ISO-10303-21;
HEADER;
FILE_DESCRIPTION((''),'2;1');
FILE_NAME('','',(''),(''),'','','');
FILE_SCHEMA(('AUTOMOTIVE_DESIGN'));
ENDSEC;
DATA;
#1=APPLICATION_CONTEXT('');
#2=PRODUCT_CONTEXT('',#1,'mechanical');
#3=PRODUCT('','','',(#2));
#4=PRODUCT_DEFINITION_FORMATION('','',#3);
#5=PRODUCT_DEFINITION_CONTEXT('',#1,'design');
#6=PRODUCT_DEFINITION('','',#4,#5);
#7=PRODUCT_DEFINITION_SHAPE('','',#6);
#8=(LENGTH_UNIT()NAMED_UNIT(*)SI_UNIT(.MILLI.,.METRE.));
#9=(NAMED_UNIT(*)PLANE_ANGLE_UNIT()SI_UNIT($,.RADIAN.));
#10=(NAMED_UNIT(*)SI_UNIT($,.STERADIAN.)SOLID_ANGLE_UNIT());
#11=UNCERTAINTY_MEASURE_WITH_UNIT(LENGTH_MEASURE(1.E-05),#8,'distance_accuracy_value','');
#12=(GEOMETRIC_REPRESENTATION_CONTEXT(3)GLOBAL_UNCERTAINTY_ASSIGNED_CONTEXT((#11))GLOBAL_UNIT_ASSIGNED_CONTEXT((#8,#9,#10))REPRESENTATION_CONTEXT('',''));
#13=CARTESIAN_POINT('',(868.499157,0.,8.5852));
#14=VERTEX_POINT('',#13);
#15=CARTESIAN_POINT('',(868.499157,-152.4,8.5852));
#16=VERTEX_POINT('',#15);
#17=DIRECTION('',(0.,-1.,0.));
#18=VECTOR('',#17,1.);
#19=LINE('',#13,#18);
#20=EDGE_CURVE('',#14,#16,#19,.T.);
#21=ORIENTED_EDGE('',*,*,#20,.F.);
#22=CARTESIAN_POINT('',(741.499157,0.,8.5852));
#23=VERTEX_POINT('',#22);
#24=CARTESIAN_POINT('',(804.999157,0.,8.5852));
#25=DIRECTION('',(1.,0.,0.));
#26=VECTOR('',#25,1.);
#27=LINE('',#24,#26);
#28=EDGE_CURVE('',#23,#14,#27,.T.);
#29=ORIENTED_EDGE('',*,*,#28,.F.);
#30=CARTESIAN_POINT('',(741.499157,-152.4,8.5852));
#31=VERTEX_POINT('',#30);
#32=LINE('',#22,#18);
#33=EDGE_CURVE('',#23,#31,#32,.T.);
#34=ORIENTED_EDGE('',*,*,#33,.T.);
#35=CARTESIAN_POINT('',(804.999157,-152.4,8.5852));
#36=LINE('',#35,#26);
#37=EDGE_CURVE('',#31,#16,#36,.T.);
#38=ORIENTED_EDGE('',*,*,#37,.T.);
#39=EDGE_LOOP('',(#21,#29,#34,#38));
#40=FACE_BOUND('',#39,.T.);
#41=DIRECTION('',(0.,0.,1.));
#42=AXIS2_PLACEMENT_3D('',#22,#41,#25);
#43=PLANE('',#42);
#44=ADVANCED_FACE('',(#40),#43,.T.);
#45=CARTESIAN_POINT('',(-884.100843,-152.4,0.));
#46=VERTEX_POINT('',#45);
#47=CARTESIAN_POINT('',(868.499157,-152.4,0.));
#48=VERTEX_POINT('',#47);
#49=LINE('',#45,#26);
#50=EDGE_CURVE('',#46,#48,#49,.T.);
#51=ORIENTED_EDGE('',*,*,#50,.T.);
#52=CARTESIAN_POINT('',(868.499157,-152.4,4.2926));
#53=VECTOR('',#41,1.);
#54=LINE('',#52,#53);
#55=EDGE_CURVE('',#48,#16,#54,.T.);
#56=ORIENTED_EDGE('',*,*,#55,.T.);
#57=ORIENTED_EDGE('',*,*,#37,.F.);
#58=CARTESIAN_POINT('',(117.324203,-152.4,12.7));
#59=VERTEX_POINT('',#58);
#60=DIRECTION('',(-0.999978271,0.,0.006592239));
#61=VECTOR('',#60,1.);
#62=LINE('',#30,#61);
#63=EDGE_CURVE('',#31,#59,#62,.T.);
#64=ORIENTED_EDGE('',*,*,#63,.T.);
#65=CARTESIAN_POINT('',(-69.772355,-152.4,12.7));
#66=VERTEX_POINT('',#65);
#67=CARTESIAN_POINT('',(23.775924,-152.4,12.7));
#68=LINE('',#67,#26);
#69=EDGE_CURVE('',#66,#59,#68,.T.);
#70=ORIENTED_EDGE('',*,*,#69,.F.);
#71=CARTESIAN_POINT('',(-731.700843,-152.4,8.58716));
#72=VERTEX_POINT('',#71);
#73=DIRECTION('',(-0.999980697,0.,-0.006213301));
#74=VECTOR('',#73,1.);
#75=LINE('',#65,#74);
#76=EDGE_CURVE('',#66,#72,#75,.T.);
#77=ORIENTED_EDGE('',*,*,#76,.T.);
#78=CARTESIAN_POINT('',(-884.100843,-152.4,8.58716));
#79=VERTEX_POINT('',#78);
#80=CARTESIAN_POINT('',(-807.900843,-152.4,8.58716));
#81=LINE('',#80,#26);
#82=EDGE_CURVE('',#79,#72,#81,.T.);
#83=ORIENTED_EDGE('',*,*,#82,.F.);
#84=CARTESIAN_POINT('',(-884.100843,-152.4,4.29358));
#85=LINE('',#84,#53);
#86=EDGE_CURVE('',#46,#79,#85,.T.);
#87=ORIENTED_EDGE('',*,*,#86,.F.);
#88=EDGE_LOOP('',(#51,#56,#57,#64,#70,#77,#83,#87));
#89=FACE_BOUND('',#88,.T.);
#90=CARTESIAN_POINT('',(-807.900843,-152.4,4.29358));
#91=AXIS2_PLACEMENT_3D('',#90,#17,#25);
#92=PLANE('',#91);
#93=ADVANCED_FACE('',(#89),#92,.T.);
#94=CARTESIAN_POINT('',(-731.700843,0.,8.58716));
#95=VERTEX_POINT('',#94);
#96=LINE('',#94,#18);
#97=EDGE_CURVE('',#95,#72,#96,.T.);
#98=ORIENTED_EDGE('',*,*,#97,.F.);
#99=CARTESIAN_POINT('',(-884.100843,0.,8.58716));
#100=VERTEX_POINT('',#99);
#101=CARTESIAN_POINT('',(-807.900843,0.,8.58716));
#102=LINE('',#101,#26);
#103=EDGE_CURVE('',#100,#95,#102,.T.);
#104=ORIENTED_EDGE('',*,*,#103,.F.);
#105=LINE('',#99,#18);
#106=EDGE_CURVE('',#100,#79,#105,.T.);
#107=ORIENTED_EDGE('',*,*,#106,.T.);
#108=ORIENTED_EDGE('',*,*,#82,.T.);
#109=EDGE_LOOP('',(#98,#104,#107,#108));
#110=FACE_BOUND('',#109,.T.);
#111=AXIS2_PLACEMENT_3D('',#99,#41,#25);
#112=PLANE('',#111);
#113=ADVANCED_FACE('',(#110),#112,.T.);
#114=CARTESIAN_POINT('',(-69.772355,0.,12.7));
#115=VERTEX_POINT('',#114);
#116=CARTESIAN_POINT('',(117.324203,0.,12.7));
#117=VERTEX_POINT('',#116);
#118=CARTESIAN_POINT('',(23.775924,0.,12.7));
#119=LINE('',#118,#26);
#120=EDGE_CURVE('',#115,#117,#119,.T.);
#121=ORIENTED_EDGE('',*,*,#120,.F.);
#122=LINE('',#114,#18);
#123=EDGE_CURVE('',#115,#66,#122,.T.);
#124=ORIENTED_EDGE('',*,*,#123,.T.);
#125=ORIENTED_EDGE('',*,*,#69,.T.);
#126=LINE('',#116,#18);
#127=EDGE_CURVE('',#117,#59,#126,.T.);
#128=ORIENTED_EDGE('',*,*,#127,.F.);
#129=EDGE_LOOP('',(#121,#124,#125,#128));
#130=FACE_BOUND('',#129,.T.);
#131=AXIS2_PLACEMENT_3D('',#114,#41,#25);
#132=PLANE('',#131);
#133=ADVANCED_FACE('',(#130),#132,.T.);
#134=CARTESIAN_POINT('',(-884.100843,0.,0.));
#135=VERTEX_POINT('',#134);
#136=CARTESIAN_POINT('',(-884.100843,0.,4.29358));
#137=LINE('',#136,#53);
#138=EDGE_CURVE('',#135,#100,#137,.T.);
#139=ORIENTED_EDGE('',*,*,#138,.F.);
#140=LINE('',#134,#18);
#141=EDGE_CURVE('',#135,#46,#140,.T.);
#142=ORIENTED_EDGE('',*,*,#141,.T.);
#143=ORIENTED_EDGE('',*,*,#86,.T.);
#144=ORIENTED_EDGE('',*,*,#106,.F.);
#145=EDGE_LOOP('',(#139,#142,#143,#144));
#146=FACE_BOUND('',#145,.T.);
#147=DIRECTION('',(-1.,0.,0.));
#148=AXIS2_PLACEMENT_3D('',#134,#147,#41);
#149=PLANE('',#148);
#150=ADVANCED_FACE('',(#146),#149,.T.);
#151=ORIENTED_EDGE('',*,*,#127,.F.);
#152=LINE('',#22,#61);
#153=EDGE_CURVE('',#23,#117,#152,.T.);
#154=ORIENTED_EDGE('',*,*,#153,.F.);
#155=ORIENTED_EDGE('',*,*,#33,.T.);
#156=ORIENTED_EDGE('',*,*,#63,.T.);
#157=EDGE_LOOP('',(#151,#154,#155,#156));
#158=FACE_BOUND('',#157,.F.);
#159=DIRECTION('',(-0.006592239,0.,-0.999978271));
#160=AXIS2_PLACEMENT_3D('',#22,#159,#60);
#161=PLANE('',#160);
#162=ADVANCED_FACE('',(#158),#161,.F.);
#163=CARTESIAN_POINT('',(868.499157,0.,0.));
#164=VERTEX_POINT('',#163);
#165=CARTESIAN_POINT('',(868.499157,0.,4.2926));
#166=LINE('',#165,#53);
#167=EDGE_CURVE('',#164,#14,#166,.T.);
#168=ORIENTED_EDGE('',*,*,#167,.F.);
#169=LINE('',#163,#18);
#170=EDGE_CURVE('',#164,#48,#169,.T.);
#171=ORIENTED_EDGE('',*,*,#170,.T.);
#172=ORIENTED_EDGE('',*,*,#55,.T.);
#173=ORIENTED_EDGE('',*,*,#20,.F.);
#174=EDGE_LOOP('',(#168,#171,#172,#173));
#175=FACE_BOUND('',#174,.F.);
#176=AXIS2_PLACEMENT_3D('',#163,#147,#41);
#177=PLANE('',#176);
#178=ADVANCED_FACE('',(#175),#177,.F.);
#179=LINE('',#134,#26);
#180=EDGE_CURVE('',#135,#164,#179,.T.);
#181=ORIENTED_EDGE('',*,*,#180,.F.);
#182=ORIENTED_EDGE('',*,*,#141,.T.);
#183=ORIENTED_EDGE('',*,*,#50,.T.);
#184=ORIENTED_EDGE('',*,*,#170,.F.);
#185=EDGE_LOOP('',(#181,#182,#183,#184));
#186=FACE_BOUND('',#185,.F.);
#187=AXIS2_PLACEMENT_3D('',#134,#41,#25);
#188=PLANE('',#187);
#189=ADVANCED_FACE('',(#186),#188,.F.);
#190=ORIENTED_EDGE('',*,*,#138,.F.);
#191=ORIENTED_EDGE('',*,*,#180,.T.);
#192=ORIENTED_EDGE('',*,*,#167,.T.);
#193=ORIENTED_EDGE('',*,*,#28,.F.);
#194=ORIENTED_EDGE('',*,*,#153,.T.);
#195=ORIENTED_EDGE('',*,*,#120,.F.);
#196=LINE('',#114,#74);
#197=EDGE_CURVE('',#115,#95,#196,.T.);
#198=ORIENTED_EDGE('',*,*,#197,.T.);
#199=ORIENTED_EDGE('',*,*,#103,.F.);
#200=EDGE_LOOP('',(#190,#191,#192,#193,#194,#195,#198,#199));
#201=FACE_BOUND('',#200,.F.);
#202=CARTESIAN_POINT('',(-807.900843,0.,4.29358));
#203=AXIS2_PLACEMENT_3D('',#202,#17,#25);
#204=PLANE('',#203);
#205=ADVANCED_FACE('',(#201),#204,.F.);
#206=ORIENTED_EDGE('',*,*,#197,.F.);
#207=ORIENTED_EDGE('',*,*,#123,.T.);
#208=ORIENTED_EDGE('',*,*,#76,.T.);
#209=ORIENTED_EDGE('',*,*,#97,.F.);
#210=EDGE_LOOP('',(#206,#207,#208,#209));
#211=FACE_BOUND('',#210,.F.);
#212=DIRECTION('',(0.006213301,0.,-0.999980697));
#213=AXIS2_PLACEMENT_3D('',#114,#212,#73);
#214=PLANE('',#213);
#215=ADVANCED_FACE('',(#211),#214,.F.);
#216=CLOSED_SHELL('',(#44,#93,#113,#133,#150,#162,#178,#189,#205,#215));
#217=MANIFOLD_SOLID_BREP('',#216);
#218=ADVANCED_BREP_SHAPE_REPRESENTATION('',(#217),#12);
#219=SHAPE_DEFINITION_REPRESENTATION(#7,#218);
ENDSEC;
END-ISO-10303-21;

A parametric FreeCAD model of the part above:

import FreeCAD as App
import Part
import Sketcher
from FreeCAD import Vector
Q = App.Units.Quantity

doc = App.newDocument("Part")
body = doc.addObject("PartDesign::Body", "Body")

sketch1 = body.newObject("Sketcher::SketchObject", "Sketch")
sketch1.AttachmentSupport = (doc.getObject("XZ_Plane"), [""])
sketch1.MapMode = "FlatFace"
sketch1.addGeometry(Part.LineSegment(Vector(-884, 9, 0), Vector(-884, 0, 0)), False)
sketch1.addGeometry(Part.LineSegment(Vector(-884, 0, 0), Vector(868, 0, 0)), False)
sketch1.addGeometry(Part.LineSegment(Vector(868, 0, 0), Vector(868, 9, 0)), False)
sketch1.addGeometry(Part.LineSegment(Vector(868, 9, 0), Vector(741, 9, 0)), False)
sketch1.addGeometry(Part.LineSegment(Vector(741, 9, 0), Vector(117, 13, 0)), False)
sketch1.addGeometry(Part.LineSegment(Vector(117, 13, 0), Vector(-70, 13, 0)), False)
sketch1.addGeometry(Part.LineSegment(Vector(-70, 13, 0), Vector(-732, 9, 0)), False)
sketch1.addGeometry(Part.LineSegment(Vector(-732, 9, 0), Vector(-884, 9, 0)), False)
sketch1.addConstraint(Sketcher.Constraint("Coincident", 0, 2, 1, 1))
sketch1.addConstraint(Sketcher.Constraint("Coincident", 1, 2, 2, 1))
sketch1.addConstraint(Sketcher.Constraint("Coincident", 2, 2, 3, 1))
sketch1.addConstraint(Sketcher.Constraint("Coincident", 3, 2, 4, 1))
sketch1.addConstraint(Sketcher.Constraint("Coincident", 4, 2, 5, 1))
sketch1.addConstraint(Sketcher.Constraint("Coincident", 5, 2, 6, 1))
sketch1.addConstraint(Sketcher.Constraint("Coincident", 6, 2, 7, 1))
sketch1.addConstraint(Sketcher.Constraint("Coincident", 7, 2, 0, 1))
sketch1.addConstraint(Sketcher.Constraint("Vertical", 0))
sketch1.addConstraint(Sketcher.Constraint("Horizontal", 1))
sketch1.addConstraint(Sketcher.Constraint("Vertical", 2))
sketch1.addConstraint(Sketcher.Constraint("Horizontal", 3))
sketch1.addConstraint(Sketcher.Constraint("Horizontal", 5))
sketch1.addConstraint(Sketcher.Constraint("Horizontal", 7))
sketch1.addConstraint(Sketcher.Constraint("PointOnObject", 0, 2, -1))
sketch1.addConstraint(Sketcher.Constraint("DistanceX", 1, 1, 1, 2, Q("69 in")))
sketch1.addConstraint(Sketcher.Constraint("DistanceX", 3, 2, 3, 1, Q("5 in")))
sketch1.addConstraint(Sketcher.Constraint("DistanceX", 7, 2, 7, 1, Q("6 in")))
sketch1.addConstraint(Sketcher.Constraint("DistanceY", -1, 1, 4, 2, Q("0.5 in")))
sketch1.addConstraint(Sketcher.Constraint("DistanceY", 2, 1, 2, 2, Q("0.338 in")))
sketch1.addConstraint(Sketcher.Constraint("DistanceX", 5, 2, 5, 1, Q("187.096558 mm")))
sketch1.addConstraint(Sketcher.Constraint("DistanceY", 0, 2, 0, 1, Q("8.58716 mm")))
sketch1.addConstraint(Sketcher.Constraint("DistanceX", 5, 2, 3, 2, Q("811.271512 mm")))
sketch1.addConstraint(Sketcher.Constraint("DistanceX", 0, 2, -1, 1, Q("884.100843 mm")))
pad1 = body.newObject("PartDesign::Pad", "Pad")
pad1.Profile = sketch1
pad1.Length = Q("6 in")

doc.recompute()
